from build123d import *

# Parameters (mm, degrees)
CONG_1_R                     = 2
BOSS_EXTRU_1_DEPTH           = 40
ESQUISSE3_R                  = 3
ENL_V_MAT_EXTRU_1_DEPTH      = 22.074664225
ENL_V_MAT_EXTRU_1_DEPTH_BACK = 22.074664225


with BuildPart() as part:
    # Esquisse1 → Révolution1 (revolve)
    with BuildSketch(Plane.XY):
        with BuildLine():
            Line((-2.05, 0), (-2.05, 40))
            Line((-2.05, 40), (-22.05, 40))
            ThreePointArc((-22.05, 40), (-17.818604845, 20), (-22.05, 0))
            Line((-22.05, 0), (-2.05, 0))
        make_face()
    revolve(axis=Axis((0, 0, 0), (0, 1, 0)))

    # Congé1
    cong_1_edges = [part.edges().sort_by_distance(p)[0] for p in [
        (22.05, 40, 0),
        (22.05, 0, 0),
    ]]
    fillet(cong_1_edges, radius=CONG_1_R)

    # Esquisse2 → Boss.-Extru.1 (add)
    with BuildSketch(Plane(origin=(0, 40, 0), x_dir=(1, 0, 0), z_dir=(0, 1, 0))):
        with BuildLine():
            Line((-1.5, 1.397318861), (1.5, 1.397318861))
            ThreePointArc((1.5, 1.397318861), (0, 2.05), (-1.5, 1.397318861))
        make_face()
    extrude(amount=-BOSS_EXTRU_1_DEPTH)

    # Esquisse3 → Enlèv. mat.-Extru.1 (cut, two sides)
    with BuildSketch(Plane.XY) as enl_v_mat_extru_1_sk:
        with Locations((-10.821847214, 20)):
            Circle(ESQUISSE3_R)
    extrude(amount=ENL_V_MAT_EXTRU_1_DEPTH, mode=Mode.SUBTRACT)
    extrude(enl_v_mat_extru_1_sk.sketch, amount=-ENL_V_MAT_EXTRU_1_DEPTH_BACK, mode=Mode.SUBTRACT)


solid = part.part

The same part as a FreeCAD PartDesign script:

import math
import FreeCAD as App
import Part
import Sketcher
Q = App.Units.Quantity


def edges_at(feature, points):
    """Names of the edges that pass closest to the given points."""
    edges = feature.Shape.Edges
    near = lambda p: min(range(len(edges)), key=lambda i: edges[i].distToShape(Part.Vertex(*p))[0])
    return sorted({f"Edge{near(p) + 1}" for p in points})

doc = App.newDocument("Part")
params = doc.addObject("Spreadsheet::Sheet", "Params")
for row, (alias, value) in enumerate([
    ("sketch1_width", "20 mm"),
    ("sketch1_height", "40 mm"),
    ("revolution_angle", "360 deg"),
    ("fillet_radius", "2 mm"),
    ("sketch2_width", "3 mm"),
    ("sketch2_radius", "2.05 mm"),
    ("pad1_length", "40 mm"),
    ("sketch3_diameter", "6 mm"),
], start=1):
    params.set(f"A{row}", alias)
    params.set(f"B{row}", "=" + value)
    params.setAlias(f"B{row}", alias)

body = doc.addObject("PartDesign::Body", "Body")

# Sketch on XY plane
sketch1 = body.newObject("Sketcher::SketchObject", "Sketch")
sketch1.AttachmentSupport = (doc.getObject("XY_Plane"), [""])
sketch1.MapMode = "FlatFace"
sketch1.addGeometry([
    Part.LineSegment(App.Vector(-2, 0, 0), App.Vector(-2, 40, 0)),
    Part.LineSegment(App.Vector(-2, 40, 0), App.Vector(-22, 40, 0)),
    Part.ArcOfCircle(Part.Circle(App.Vector(-67, 20, 0), App.Vector(0, 0, 1), 49), math.radians(-24), math.radians(24)),
    Part.LineSegment(App.Vector(-22, 0, 0), App.Vector(-2, 0, 0)),
], False)
sketch1.addConstraint([
    Sketcher.Constraint("Coincident", 0, 2, 1, 1),
    Sketcher.Constraint("Coincident", 1, 2, 2, 2),
    Sketcher.Constraint("Coincident", 2, 1, 3, 1),
    Sketcher.Constraint("Coincident", 3, 2, 0, 1),
    Sketcher.Constraint("Vertical", 0),
    Sketcher.Constraint("Horizontal", 1),
    Sketcher.Constraint("Horizontal", 3),
    Sketcher.Constraint("PointOnObject", 2, 1, -1),
    Sketcher.Constraint("Vertical", 1, 2, 2, 1),
    Sketcher.Constraint("DistanceX", 1, 2, 1, 1, Q("20 mm")),
    Sketcher.Constraint("DistanceY", 0, 1, 0, 2, Q("40 mm")),
    Sketcher.Constraint("DistanceX", 0, 2, -1, 1, Q("2.05 mm")),
    Sketcher.Constraint("Radius", 2, Q("49.381432 mm")),
])
sketch1.setExpression("Constraints[9]", "Params.sketch1_width")
sketch1.setExpression("Constraints[10]", "Params.sketch1_height")
revolution = body.newObject("PartDesign::Revolution", "Revolution")
revolution.Profile = sketch1
revolution.ReferenceAxis = (sketch1, ["V_Axis"])
revolution.setExpression("Angle", "Params.revolution_angle")
doc.recompute()

fillet = body.newObject("PartDesign::Fillet", "Fillet")
fillet.Base = (revolution, edges_at(revolution, [(22.05, 40, 0), (22.05, 0, 0)]))
fillet.setExpression("Radius", "Params.fillet_radius")

# Sketch on XZ plane
sketch2 = body.newObject("Sketcher::SketchObject", "Sketch001")
sketch2.AttachmentSupport = (doc.getObject("XZ_Plane"), [""])
sketch2.MapMode = "FlatFace"
sketch2.AttachmentOffset = App.Placement(App.Vector(0, 0, -40), App.Rotation())
sketch2.addGeometry([
    Part.LineSegment(App.Vector(-1.5, -1.4, 0), App.Vector(1.5, -1.4, 0)),
    Part.ArcOfCircle(Part.Circle(App.Vector(0, 0, 0), App.Vector(0, 0, 1), 2), math.radians(-137), math.radians(-43)),
], False)
sketch2.addConstraint([
    Sketcher.Constraint("Coincident", 0, 1, 1, 1),
    Sketcher.Constraint("Coincident", 1, 2, 0, 2),
    Sketcher.Constraint("Horizontal", 0),
    Sketcher.Constraint("Coincident", 1, 3, -1, 1),
    Sketcher.Constraint("DistanceX", 0, 1, 0, 2, Q("3 mm")),
    Sketcher.Constraint("Radius", 1, Q("2.05 mm")),
])
sketch2.setExpression("Constraints[4]", "Params.sketch2_width")
sketch2.setExpression("Constraints[5]", "Params.sketch2_radius")
pad1 = body.newObject("PartDesign::Pad", "Pad")
pad1.Profile = sketch2
pad1.setExpression("Length", "Params.pad1_length")

# Sketch on XY plane
sketch3 = body.newObject("Sketcher::SketchObject", "Sketch002")
sketch3.AttachmentSupport = (doc.getObject("XY_Plane"), [""])
sketch3.MapMode = "FlatFace"
sketch3.addGeometry(Part.Circle(App.Vector(-10.8, 20, 0), App.Vector(0, 0, 1), 3), False)
sketch3.addConstraint([
    Sketcher.Constraint("Diameter", 0, Q("6 mm")),
    Sketcher.Constraint("DistanceY", -1, 1, 0, 3, Q("20 mm")),
    Sketcher.Constraint("DistanceX", 0, 3, -1, 1, Q("10.821847 mm")),
])
sketch3.setExpression("Constraints[0]", "Params.sketch3_diameter")
pocket1 = body.newObject("PartDesign::Pocket", "Pocket")
pocket1.Profile = sketch3
pocket1.Type = "ThroughAll"
pocket1.Midplane = True

doc.recompute()
